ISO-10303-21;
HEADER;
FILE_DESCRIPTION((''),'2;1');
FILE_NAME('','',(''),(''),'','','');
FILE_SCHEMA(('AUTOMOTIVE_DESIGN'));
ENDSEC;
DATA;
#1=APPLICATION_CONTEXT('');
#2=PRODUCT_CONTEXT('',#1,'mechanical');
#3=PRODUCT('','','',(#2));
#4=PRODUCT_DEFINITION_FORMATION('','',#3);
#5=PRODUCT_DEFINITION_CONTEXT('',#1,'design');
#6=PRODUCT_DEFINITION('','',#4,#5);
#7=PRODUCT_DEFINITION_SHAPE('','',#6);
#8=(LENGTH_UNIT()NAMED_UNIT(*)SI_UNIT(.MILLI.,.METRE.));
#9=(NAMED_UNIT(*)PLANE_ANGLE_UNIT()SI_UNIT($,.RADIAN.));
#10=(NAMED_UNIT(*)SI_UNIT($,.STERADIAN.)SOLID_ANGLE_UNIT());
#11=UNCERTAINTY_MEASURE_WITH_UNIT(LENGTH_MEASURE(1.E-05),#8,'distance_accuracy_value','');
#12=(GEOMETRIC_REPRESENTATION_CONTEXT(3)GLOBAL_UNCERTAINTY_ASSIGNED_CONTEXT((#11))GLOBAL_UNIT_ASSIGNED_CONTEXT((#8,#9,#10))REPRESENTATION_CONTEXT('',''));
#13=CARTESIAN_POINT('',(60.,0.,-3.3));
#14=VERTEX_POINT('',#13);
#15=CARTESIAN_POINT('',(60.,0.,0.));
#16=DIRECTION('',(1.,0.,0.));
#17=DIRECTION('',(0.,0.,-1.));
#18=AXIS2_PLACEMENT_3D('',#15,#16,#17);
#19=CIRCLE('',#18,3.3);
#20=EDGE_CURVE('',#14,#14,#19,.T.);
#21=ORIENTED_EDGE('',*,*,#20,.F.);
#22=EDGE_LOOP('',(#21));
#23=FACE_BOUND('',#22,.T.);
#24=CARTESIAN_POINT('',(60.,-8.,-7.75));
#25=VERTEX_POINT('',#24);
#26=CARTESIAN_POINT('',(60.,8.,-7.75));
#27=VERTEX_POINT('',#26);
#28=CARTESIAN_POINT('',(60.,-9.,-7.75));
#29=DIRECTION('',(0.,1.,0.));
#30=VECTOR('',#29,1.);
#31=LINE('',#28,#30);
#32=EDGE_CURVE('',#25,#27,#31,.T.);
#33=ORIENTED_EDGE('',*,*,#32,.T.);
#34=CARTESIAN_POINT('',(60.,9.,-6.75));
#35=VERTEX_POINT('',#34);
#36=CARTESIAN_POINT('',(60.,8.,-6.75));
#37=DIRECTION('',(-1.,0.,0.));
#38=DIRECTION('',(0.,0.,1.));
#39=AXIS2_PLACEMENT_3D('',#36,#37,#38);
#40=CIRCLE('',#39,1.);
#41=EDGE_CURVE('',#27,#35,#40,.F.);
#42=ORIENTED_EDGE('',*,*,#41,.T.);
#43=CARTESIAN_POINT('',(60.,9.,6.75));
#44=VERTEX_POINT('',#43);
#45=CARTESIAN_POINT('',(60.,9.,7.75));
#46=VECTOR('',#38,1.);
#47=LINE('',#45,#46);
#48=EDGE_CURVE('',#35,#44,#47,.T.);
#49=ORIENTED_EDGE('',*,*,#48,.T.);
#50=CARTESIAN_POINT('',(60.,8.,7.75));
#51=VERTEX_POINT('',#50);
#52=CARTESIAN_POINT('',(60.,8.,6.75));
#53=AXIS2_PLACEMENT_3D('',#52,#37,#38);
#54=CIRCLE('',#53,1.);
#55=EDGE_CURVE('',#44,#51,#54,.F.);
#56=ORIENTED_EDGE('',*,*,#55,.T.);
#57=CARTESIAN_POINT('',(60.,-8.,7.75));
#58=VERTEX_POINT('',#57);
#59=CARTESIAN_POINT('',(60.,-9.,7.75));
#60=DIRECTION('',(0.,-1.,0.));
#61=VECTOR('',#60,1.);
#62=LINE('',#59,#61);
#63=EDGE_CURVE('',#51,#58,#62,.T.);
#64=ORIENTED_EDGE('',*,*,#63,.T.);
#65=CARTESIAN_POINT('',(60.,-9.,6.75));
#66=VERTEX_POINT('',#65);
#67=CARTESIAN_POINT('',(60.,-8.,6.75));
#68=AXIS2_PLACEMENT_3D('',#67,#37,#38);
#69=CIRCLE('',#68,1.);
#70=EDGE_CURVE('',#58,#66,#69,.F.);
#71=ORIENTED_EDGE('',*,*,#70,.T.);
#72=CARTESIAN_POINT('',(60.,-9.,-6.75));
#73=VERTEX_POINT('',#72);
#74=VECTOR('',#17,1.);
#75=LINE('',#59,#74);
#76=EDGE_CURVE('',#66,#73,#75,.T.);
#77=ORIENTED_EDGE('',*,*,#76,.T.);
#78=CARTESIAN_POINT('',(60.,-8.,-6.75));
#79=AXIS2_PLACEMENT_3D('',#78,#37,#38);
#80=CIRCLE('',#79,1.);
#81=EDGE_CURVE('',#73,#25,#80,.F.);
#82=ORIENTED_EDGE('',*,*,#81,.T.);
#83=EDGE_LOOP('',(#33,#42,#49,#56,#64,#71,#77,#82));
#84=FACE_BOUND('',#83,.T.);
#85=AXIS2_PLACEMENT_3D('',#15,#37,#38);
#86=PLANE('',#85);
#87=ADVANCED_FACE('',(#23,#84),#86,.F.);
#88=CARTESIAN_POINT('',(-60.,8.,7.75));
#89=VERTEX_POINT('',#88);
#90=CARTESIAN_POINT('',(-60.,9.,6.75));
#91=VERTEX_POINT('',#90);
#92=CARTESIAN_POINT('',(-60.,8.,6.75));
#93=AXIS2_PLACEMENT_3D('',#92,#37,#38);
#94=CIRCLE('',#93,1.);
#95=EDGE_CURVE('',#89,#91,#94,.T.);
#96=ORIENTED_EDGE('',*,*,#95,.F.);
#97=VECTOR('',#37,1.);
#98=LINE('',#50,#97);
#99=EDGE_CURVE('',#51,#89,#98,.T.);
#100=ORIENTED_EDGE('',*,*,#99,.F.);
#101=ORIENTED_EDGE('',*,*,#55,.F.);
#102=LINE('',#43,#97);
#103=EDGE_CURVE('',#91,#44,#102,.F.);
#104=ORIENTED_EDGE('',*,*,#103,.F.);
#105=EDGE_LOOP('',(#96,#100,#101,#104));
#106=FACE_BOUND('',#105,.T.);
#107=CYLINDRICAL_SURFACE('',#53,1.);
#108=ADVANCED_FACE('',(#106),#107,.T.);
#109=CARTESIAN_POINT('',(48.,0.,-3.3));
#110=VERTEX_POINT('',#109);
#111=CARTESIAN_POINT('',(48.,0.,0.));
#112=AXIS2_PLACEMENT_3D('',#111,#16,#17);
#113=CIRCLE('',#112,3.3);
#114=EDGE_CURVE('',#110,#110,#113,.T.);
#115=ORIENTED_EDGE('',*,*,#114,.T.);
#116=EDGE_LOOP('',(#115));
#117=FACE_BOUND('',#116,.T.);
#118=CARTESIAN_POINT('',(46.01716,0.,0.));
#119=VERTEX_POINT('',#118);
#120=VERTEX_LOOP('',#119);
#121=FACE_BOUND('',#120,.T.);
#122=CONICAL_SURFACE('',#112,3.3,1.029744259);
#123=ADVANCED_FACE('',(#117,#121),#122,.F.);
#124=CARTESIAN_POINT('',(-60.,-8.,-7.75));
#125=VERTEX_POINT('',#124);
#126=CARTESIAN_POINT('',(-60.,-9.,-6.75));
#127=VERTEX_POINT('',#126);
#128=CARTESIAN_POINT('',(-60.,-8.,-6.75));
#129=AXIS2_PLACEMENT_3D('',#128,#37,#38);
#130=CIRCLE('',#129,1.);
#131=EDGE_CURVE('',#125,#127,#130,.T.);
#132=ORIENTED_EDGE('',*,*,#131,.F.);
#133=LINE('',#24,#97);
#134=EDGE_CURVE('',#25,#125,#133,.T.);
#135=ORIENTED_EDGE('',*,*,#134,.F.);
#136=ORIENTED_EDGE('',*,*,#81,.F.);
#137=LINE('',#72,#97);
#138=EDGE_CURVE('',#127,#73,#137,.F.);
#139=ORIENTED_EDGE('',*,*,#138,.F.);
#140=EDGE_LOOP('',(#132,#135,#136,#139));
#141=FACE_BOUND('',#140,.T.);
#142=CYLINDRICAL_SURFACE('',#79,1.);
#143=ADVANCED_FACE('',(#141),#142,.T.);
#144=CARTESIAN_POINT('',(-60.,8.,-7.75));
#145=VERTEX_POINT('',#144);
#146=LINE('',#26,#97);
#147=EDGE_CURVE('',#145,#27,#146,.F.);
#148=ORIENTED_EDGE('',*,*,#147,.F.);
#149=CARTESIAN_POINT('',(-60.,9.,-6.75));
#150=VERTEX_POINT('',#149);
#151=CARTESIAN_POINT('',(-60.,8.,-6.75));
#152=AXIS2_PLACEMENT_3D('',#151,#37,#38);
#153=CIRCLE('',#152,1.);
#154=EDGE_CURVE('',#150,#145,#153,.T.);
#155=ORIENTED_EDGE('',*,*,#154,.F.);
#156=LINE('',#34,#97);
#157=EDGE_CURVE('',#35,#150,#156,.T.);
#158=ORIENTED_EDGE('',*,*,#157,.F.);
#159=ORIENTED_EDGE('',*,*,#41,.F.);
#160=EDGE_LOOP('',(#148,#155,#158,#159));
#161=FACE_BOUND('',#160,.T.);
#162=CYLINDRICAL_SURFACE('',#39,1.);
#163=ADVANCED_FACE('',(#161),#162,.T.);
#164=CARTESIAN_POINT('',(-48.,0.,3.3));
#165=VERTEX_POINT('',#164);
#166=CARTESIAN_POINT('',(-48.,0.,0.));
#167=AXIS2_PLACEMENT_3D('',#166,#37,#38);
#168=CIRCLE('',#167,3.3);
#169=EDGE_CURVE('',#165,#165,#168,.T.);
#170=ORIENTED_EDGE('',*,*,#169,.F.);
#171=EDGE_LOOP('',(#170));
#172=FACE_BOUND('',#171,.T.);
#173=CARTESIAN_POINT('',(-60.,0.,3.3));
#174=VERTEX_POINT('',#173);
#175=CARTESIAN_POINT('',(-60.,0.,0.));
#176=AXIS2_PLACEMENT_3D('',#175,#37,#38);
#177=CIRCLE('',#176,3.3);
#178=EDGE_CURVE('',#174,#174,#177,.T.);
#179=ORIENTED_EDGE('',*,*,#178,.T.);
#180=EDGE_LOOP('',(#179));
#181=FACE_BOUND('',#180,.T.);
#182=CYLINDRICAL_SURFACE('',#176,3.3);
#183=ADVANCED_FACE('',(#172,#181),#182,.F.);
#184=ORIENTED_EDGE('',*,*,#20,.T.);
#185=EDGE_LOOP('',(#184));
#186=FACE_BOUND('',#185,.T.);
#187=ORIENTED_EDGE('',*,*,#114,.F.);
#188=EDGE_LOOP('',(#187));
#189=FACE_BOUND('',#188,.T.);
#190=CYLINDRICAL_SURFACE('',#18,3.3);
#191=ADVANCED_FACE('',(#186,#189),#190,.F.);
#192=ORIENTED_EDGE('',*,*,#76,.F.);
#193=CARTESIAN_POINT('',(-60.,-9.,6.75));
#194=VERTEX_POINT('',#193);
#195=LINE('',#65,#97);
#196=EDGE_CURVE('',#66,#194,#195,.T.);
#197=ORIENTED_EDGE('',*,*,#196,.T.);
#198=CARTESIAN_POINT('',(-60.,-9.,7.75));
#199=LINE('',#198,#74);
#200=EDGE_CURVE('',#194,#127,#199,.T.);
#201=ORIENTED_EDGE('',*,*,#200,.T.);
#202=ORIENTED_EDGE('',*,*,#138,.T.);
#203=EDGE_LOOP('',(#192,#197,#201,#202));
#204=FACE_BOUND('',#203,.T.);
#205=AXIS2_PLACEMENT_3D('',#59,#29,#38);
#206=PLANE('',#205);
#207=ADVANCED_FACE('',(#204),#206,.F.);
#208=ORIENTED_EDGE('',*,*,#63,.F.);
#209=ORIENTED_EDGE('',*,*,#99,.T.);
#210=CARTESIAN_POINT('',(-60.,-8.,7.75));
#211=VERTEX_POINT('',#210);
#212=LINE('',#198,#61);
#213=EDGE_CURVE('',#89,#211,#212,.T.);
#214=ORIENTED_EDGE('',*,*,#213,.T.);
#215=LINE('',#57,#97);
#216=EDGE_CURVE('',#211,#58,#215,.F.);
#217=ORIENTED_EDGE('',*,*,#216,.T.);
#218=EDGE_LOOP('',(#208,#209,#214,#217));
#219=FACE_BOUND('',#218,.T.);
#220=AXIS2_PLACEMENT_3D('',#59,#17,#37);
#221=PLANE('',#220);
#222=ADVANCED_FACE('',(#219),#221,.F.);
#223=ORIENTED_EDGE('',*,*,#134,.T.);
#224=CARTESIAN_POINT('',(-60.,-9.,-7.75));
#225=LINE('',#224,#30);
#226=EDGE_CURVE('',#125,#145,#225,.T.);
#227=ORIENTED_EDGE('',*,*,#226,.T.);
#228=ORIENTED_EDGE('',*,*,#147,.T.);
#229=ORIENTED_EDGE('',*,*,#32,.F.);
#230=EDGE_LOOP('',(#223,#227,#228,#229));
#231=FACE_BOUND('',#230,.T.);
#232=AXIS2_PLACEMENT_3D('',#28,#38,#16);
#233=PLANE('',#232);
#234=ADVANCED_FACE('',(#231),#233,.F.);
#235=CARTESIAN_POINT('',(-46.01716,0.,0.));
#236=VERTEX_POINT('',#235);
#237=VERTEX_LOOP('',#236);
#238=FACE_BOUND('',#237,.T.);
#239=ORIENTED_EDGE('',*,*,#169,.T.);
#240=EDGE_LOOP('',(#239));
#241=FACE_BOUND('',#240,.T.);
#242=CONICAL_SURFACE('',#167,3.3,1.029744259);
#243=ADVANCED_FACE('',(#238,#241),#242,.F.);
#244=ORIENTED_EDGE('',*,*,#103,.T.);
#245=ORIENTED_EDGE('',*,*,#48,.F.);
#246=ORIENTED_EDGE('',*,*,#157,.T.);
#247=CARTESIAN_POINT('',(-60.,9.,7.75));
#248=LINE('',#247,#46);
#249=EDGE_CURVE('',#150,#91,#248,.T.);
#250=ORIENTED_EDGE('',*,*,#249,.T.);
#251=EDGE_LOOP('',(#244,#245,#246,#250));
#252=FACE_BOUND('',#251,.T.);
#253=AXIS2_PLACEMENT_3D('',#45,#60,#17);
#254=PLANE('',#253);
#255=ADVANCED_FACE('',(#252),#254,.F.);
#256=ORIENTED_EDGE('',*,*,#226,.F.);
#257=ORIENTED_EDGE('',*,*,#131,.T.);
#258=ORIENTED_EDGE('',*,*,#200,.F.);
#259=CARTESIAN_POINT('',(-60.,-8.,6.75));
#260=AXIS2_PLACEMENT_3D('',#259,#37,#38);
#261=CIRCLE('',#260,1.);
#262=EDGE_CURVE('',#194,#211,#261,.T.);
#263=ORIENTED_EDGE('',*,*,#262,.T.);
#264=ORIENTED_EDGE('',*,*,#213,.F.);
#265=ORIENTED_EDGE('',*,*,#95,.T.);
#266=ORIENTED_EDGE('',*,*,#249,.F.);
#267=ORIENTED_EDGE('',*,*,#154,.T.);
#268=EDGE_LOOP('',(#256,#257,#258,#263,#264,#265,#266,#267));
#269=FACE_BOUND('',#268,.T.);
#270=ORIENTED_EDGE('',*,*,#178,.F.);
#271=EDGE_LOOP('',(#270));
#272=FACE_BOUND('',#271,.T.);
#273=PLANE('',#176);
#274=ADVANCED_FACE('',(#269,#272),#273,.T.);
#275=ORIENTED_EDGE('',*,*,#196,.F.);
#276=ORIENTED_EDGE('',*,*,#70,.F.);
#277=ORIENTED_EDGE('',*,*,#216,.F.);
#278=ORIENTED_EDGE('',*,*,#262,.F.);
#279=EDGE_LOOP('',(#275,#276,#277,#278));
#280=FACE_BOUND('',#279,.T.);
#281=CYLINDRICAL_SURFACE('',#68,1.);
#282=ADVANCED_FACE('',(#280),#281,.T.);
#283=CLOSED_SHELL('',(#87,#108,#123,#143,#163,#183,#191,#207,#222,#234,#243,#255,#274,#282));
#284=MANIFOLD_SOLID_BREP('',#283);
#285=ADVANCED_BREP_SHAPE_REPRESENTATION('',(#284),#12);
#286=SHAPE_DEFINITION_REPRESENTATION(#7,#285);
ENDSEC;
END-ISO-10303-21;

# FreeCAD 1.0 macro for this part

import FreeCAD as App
import Part
import Sketcher
from FreeCAD import Vector
Q = App.Units.Quantity


def edges_at(feature, points):
    """Names of the edges that pass closest to the given points."""
    edges = feature.Shape.Edges
    near = lambda p: min(range(len(edges)), key=lambda i: edges[i].distToShape(Part.Vertex(*p))[0])
    return sorted({f"Edge{near(p) + 1}" for p in points})

doc = App.newDocument("Part")
body = doc.addObject("PartDesign::Body", "Body")

sketch1 = body.newObject("Sketcher::SketchObject", "Sketch")
sketch1.AttachmentSupport = (doc.getObject("YZ_Plane"), [""])
sketch1.MapMode = "FlatFace"
sketch1.addGeometry(Part.LineSegment(Vector(9, 7.75, 0), Vector(-9, 7.75, 0)), False)
sketch1.addGeometry(Part.LineSegment(Vector(-9, 7.75, 0), Vector(-9, -7.75, 0)), False)
sketch1.addGeometry(Part.LineSegment(Vector(-9, -7.75, 0), Vector(9, -7.75, 0)), False)
sketch1.addGeometry(Part.LineSegment(Vector(9, -7.75, 0), Vector(9, 7.75, 0)), False)
sketch1.addConstraint(Sketcher.Constraint("Coincident", 0, 2, 1, 1))
sketch1.addConstraint(Sketcher.Constraint("Coincident", 1, 2, 2, 1))
sketch1.addConstraint(Sketcher.Constraint("Coincident", 2, 2, 3, 1))
sketch1.addConstraint(Sketcher.Constraint("Coincident", 3, 2, 0, 1))
sketch1.addConstraint(Sketcher.Constraint("Horizontal", 0))
sketch1.addConstraint(Sketcher.Constraint("Vertical", 1))
sketch1.addConstraint(Sketcher.Constraint("Horizontal", 2))
sketch1.addConstraint(Sketcher.Constraint("Vertical", 3))
sketch1.addConstraint(Sketcher.Constraint("Symmetric", 0, 2, 2, 2, -1, 1))
sketch1.addConstraint(Sketcher.Constraint("DistanceX", 0, 2, 0, 1, Q("18 mm")))
sketch1.addConstraint(Sketcher.Constraint("DistanceY", 1, 2, 1, 1, Q("15.5 mm")))
pad1 = body.newObject("PartDesign::Pad", "Pad")
pad1.Profile = sketch1
pad1.Length = 120
pad1.Midplane = True
doc.recompute()

fillet = body.newObject("PartDesign::Fillet", "Fillet")
fillet.Base = (pad1, edges_at(pad1, [
    (0, -9, -7.75),
    (0, -9, 7.75),
    (0, 9, 7.75),
    (0, 9, -7.75),
]))
fillet.Radius = 1

sketch2 = body.newObject("Sketcher::SketchObject", "Sketch001")
sketch2.AttachmentSupport = (doc.getObject("XZ_Plane"), [""])
sketch2.MapMode = "FlatFace"
sketch2.addGeometry(Part.LineSegment(Vector(46.01716, 0, 0), Vector(60, 0, 0)), False)
sketch2.addGeometry(Part.LineSegment(Vector(60, 0, 0), Vector(60, -3.3, 0)), False)
sketch2.addGeometry(Part.LineSegment(Vector(60, -3.3, 0), Vector(48, -3.3, 0)), False)
sketch2.addGeometry(Part.LineSegment(Vector(48, -3.3, 0), Vector(46.01716, 0, 0)), False)
sketch2.addConstraint(Sketcher.Constraint("Coincident", 0, 2, 1, 1))
sketch2.addConstraint(Sketcher.Constraint("Coincident", 1, 2, 2, 1))
sketch2.addConstraint(Sketcher.Constraint("Coincident", 2, 2, 3, 1))
sketch2.addConstraint(Sketcher.Constraint("Coincident", 3, 2, 0, 1))
sketch2.addConstraint(Sketcher.Constraint("Horizontal", 0))
sketch2.addConstraint(Sketcher.Constraint("Vertical", 1))
sketch2.addConstraint(Sketcher.Constraint("Horizontal", 2))
sketch2.addConstraint(Sketcher.Constraint("PointOnObject", 0, 2, -1))
sketch2.addConstraint(Sketcher.Constraint("DistanceX", 2, 2, 2, 1, Q("12 mm")))
sketch2.addConstraint(Sketcher.Constraint("Angle", 3, Q("121 deg")))
sketch2.addConstraint(Sketcher.Constraint("DistanceY", 1, 2, 1, 1, Q("3.3 mm")))
sketch2.addConstraint(Sketcher.Constraint("DistanceX", -1, 1, 0, 2, Q("60 mm")))
groove = body.newObject("PartDesign::Groove", "Groove")
groove.Profile = sketch2
groove.ReferenceAxis = (sketch2, ["H_Axis"])
groove.Angle = 360
doc.recompute()

mirrored = body.newObject("PartDesign::Mirrored", "Mirrored")
mirrored.Originals = [groove]
mirrored.MirrorPlane = (doc.getObject("YZ_Plane"), [""])
body.Tip = mirrored

doc.recompute()
